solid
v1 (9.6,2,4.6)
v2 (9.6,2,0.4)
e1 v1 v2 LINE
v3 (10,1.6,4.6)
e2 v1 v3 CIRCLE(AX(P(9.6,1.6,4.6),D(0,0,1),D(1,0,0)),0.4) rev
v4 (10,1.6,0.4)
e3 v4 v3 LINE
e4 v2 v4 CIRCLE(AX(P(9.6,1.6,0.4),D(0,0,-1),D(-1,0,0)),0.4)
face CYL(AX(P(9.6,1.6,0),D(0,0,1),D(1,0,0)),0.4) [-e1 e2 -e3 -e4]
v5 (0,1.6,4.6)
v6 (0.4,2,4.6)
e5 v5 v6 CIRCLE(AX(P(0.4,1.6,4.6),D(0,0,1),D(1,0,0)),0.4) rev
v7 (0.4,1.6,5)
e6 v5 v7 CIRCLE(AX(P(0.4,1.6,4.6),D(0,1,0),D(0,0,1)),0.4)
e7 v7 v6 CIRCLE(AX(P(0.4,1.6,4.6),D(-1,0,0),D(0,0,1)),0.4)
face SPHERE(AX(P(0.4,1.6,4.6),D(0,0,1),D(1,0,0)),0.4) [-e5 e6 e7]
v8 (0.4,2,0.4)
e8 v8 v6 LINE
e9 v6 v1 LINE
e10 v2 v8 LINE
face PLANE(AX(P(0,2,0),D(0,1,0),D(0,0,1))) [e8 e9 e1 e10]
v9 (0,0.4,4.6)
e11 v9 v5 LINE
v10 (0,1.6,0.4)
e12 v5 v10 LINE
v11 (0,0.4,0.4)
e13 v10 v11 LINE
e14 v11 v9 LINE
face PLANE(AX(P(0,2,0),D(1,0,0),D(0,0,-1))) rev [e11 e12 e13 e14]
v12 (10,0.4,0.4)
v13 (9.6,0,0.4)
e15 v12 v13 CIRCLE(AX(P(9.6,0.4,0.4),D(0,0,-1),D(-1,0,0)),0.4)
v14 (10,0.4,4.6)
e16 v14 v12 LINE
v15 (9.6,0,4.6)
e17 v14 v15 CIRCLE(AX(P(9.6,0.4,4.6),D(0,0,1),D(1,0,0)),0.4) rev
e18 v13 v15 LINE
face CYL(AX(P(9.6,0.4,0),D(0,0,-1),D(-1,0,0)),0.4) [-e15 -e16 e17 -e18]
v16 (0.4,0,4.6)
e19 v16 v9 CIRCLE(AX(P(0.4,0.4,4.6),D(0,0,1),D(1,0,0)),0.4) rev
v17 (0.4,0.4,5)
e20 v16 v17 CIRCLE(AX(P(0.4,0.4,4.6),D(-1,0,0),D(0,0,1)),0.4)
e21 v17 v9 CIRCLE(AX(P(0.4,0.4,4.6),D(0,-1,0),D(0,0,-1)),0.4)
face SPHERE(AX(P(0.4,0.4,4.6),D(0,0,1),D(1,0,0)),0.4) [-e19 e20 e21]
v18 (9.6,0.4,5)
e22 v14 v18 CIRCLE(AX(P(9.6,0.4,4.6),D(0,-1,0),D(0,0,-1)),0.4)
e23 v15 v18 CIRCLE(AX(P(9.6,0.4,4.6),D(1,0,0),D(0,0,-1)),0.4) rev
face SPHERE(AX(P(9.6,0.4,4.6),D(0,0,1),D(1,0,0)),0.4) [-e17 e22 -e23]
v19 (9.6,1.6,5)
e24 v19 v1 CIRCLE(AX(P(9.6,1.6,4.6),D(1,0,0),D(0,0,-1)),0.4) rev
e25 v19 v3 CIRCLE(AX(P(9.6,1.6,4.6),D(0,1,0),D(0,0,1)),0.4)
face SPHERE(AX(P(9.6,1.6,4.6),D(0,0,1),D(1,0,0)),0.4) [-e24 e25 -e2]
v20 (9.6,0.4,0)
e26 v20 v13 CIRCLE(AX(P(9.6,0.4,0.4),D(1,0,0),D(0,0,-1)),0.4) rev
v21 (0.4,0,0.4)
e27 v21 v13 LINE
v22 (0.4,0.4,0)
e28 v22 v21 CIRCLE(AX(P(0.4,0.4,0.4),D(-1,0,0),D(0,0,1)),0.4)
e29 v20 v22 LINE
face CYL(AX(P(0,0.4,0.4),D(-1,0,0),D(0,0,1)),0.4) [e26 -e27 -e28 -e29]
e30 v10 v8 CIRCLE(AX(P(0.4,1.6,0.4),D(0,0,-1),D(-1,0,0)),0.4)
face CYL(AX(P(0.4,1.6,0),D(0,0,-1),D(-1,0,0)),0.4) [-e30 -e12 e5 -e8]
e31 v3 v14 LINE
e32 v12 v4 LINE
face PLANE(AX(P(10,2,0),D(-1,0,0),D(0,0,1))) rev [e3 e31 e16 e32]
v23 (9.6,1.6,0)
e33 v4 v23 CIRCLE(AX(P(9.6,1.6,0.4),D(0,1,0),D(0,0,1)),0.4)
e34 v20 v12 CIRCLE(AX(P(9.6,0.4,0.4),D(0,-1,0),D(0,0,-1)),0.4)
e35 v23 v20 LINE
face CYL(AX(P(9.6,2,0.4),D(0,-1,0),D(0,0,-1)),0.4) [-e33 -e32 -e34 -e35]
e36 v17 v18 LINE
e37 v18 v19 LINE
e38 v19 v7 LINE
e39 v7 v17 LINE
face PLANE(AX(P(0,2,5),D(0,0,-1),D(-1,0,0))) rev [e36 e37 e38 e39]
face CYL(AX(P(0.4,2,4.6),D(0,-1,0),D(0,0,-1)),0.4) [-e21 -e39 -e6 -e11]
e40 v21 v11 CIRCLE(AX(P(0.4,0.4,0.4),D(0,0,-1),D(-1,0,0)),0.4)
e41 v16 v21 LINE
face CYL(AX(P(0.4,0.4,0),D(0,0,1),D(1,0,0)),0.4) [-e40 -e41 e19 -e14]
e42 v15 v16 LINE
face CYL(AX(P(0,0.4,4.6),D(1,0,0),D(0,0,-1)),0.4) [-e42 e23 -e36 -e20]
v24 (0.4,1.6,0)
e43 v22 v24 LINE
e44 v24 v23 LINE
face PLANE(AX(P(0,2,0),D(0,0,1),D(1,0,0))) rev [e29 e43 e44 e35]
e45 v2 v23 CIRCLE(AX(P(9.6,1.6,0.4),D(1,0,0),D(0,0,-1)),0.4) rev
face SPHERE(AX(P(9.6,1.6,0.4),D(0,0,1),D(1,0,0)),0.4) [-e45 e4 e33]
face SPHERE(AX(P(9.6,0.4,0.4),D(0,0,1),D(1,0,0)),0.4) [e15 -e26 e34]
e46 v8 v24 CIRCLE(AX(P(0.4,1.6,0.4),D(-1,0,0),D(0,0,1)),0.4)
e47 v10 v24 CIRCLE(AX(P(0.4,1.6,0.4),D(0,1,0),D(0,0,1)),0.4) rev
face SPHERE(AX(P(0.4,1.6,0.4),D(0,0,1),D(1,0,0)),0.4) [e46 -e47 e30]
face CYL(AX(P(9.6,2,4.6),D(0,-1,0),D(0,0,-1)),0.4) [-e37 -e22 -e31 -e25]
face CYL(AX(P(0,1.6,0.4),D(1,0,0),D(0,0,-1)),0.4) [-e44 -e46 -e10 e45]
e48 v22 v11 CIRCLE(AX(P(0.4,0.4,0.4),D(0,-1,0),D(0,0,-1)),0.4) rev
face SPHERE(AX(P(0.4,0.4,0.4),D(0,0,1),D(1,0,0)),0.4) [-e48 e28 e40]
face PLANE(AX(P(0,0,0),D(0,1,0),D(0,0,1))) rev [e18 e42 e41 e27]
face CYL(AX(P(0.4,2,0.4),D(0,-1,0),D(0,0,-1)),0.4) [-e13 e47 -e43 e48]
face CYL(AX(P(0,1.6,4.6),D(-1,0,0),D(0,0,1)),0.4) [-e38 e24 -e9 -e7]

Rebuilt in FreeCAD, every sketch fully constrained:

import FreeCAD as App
import Part
import Sketcher

V = App.Vector
Q = App.Units.Quantity

doc = App.newDocument("Part")
body = doc.addObject("PartDesign::Body", "Body")

sketch1 = doc.addObject("Sketcher::SketchObject", "Sketch")
body.addObject(sketch1)
sketch1.AttachmentSupport = (doc.XZ_Plane, [""])
sketch1.MapMode = "FlatFace"
sketch1.addGeometry([
    Part.LineSegment(V(0, 0, 0), V(0, 5, 0)),
    Part.LineSegment(V(0, 5, 0), V(10, 5, 0)),
    Part.LineSegment(V(10, 5, 0), V(10, 0, 0)),
    Part.LineSegment(V(10, 0, 0), V(0, 0, 0)),
], False)
sketch1.addConstraint([
    Sketcher.Constraint("Coincident", 0, 2, 1, 1),
    Sketcher.Constraint("Coincident", 1, 2, 2, 1),
    Sketcher.Constraint("Coincident", 2, 2, 3, 1),
    Sketcher.Constraint("Coincident", 3, 2, 0, 1),
    Sketcher.Constraint("Vertical", 0),
    Sketcher.Constraint("Horizontal", 1),
    Sketcher.Constraint("Vertical", 2),
    Sketcher.Constraint("Horizontal", 3),
    Sketcher.Constraint("Coincident", 3, 2, -1, 1),
    Sketcher.Constraint("DistanceX", 1, 1, 1, 2, Q("10 mm")),
    Sketcher.Constraint("DistanceY", 0, 1, 0, 2, Q("5 mm")),
])
pad1 = doc.addObject("PartDesign::Pad", "Pad")
body.addObject(pad1)
pad1.Profile = sketch1
pad1.Length = 2
pad1.Reversed = True
doc.recompute()

fillet = doc.addObject("PartDesign::Fillet", "Fillet")
body.addObject(fillet)
fillet.Base = (pad1, ["Edge1"])
fillet.UseAllEdges = True
fillet.Radius = 0.4

doc.recompute()
